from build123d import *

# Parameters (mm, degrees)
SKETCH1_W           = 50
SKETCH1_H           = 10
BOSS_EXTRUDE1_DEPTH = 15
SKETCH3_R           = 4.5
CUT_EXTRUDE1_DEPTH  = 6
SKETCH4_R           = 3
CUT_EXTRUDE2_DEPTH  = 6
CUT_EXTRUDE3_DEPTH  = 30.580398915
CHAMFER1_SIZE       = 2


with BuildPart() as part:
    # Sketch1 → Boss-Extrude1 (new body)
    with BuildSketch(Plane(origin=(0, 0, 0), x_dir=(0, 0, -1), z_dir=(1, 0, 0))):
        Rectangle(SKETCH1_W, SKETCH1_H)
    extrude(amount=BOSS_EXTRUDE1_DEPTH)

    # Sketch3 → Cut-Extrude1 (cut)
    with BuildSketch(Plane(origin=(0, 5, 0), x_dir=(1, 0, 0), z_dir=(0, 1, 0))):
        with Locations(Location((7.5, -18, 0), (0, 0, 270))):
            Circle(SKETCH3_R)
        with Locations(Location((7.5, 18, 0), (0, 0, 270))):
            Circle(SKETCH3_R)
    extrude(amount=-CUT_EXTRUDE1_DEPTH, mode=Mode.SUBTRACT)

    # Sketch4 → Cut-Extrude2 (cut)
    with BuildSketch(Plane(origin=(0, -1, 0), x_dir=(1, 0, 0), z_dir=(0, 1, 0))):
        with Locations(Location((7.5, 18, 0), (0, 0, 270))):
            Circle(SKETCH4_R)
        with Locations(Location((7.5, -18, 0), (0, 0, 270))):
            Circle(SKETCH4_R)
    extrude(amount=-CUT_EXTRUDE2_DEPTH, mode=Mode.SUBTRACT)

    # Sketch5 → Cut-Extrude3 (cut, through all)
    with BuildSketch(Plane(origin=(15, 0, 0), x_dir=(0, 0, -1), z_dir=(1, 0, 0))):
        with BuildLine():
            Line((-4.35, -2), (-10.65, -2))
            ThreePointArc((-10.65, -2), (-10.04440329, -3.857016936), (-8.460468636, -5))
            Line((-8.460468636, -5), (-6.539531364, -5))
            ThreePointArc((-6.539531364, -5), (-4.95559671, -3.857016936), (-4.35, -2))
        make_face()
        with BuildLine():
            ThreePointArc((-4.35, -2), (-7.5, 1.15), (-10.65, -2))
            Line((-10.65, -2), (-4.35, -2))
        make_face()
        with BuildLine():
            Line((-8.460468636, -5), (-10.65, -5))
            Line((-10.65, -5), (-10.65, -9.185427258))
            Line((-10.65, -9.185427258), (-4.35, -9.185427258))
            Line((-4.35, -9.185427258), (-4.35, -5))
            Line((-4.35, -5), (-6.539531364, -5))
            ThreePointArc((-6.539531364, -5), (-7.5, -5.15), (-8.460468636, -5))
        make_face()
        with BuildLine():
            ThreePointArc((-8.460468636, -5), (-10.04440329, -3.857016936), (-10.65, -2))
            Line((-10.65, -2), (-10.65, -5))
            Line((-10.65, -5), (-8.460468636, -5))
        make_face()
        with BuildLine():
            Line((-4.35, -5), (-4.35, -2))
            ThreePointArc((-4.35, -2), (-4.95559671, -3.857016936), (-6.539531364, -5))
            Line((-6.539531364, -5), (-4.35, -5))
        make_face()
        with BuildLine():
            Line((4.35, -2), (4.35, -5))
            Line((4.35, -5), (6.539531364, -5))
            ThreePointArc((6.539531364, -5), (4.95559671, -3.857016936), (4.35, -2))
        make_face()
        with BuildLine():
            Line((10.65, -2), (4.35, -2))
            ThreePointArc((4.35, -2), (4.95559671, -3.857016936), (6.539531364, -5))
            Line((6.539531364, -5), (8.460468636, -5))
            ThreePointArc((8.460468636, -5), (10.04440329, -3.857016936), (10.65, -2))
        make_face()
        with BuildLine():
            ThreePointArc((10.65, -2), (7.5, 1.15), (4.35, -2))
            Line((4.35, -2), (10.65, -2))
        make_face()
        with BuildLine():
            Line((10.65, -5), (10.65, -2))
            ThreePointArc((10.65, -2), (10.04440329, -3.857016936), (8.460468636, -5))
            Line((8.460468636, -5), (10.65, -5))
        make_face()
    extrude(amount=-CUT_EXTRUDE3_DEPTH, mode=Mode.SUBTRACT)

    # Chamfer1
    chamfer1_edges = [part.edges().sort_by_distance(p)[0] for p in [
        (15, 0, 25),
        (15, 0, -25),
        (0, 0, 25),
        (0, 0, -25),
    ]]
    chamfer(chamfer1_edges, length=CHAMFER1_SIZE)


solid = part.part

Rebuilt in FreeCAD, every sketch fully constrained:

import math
import FreeCAD as App
import Part
import Sketcher

V = App.Vector


def edges_at(feature, points):
    """Names of the edges that pass closest to the given points."""
    edges = feature.Shape.Edges
    near = lambda p: min(range(len(edges)), key=lambda i: edges[i].distToShape(Part.Vertex(*p))[0])
    return sorted({f"Edge{near(p) + 1}" for p in points})

doc = App.newDocument("Part")
body = doc.addObject("PartDesign::Body", "Body")

sketch1 = body.newObject("Sketcher::SketchObject", "Sketch")
sketch1.AttachmentSupport = (doc.getObject("YZ_Plane"), [""])
sketch1.MapMode = "FlatFace"
sketch1.addGeometry(Part.LineSegment(V(5, 25, 0), V(-5, 25, 0)), False)
sketch1.addGeometry(Part.LineSegment(V(-5, 25, 0), V(-5, -25, 0)), False)
sketch1.addGeometry(Part.LineSegment(V(-5, -25, 0), V(5, -25, 0)), False)
sketch1.addGeometry(Part.LineSegment(V(5, -25, 0), V(5, 25, 0)), False)
sketch1.addConstraint(Sketcher.Constraint("Coincident", 0, 2, 1, 1))
sketch1.addConstraint(Sketcher.Constraint("Coincident", 1, 2, 2, 1))
sketch1.addConstraint(Sketcher.Constraint("Coincident", 2, 2, 3, 1))
sketch1.addConstraint(Sketcher.Constraint("Coincident", 3, 2, 0, 1))
sketch1.addConstraint(Sketcher.Constraint("Horizontal", 0))
sketch1.addConstraint(Sketcher.Constraint("Vertical", 1))
sketch1.addConstraint(Sketcher.Constraint("Horizontal", 2))
sketch1.addConstraint(Sketcher.Constraint("Vertical", 3))
sketch1.addConstraint(Sketcher.Constraint("Symmetric", 0, 2, 2, 2, -1, 1))
sketch1.addConstraint(Sketcher.Constraint("DistanceX", 0, 2, 0, 1, 10.0))
sketch1.addConstraint(Sketcher.Constraint("DistanceY", 1, 2, 1, 1, 50.0))
pad1 = body.newObject("PartDesign::Pad", "Pad")
pad1.Profile = sketch1
pad1.Length = 15

sketch2 = body.newObject("Sketcher::SketchObject", "Sketch001")
sketch2.AttachmentSupport = (doc.getObject("XZ_Plane"), [""])
sketch2.MapMode = "FlatFace"
sketch2.AttachmentOffset = App.Placement(V(0, 0, -5), App.Rotation())
sketch2.addGeometry(Part.Circle(V(7.5, 18, 0), V(0, 0, 1), 4.5), False)
sketch2.addGeometry(Part.Circle(V(7.5, -18, 0), V(0, 0, 1), 4.5), False)
sketch2.addConstraint(Sketcher.Constraint("Equal", 0, 1))
sketch2.addConstraint(Sketcher.Constraint("Symmetric", 0, 3, 1, 3, -1))
sketch2.addConstraint(Sketcher.Constraint("Diameter", 0, 9.0))
sketch2.addConstraint(Sketcher.Constraint("DistanceY", -1, 1, 0, 3, 18.0))
sketch2.addConstraint(Sketcher.Constraint("DistanceX", -1, 1, 0, 3, 7.5))
pocket1 = body.newObject("PartDesign::Pocket", "Pocket")
pocket1.Profile = sketch2
pocket1.Length = 6
pocket1.Reversed = True

sketch3 = body.newObject("Sketcher::SketchObject", "Sketch002")
sketch3.AttachmentSupport = (doc.getObject("XZ_Plane"), [""])
sketch3.MapMode = "FlatFace"
sketch3.AttachmentOffset = App.Placement(V(0, 0, 1), App.Rotation())
sketch3.addGeometry(Part.Circle(V(7.5, -18, 0), V(0, 0, 1), 3), False)
sketch3.addGeometry(Part.Circle(V(7.5, 18, 0), V(0, 0, 1), 3), False)
sketch3.addConstraint(Sketcher.Constraint("Equal", 0, 1))
sketch3.addConstraint(Sketcher.Constraint("Symmetric", 0, 3, 1, 3, -1))
sketch3.addConstraint(Sketcher.Constraint("Diameter", 0, 6.0))
sketch3.addConstraint(Sketcher.Constraint("DistanceY", 0, 3, -1, 1, 18.0))
sketch3.addConstraint(Sketcher.Constraint("DistanceX", -1, 1, 0, 3, 7.5))
pocket2 = body.newObject("PartDesign::Pocket", "Pocket001")
pocket2.Profile = sketch3
pocket2.Length = 6
pocket2.Reversed = True

sketch4 = body.newObject("Sketcher::SketchObject", "Sketch003")
sketch4.AttachmentSupport = (doc.getObject("YZ_Plane"), [""])
sketch4.MapMode = "FlatFace"
sketch4.AttachmentOffset = App.Placement(V(0, 0, 15), App.Rotation())
sketch4.addGeometry(Part.LineSegment(V(-9.2, 4.3, 0), V(-2, 4.3, 0)), False)
sketch4.addGeometry(Part.ArcOfCircle(Part.Circle(V(-2, 7.5, 0), V(0, 0, 1), 3.1), math.radians(-90), math.radians(90)), False)
sketch4.addGeometry(Part.LineSegment(V(-2, 10.7, 0), V(-9.2, 10.7, 0)), False)
sketch4.addGeometry(Part.LineSegment(V(-9.2, 10.7, 0), V(-9.2, 4.3, 0)), False)
sketch4.addGeometry(Part.LineSegment(V(-5, 8.5, 0), V(-5, 6.5, 0)), False)
sketch4.addGeometry(Part.ArcOfCircle(Part.Circle(V(-2, 7.5, 0), V(0, 0, 1), 3.2), math.radians(162), math.radians(198)), False)
sketch4.addGeometry(Part.LineSegment(V(-2, -4.3, 0), V(-5, -4.3, 0)), False)
sketch4.addGeometry(Part.LineSegment(V(-5, -4.3, 0), V(-5, -10.7, 0)), False)
sketch4.addGeometry(Part.LineSegment(V(-5, -10.7, 0), V(-2, -10.7, 0)), False)
sketch4.addGeometry(Part.ArcOfCircle(Part.Circle(V(-2, -7.5, 0), V(0, 0, 1), 3.1), math.radians(-90), math.radians(90)), False)
sketch4.addConstraint(Sketcher.Constraint("Tangent", 0, 2, 1, 1))
sketch4.addConstraint(Sketcher.Constraint("Tangent", 1, 2, 2, 1))
sketch4.addConstraint(Sketcher.Constraint("Coincident", 2, 2, 3, 1))
sketch4.addConstraint(Sketcher.Constraint("Coincident", 3, 2, 0, 1))
sketch4.addConstraint(Sketcher.Constraint("Coincident", 4, 1, 5, 1))
sketch4.addConstraint(Sketcher.Constraint("Coincident", 5, 2, 4, 2))
sketch4.addConstraint(Sketcher.Constraint("Coincident", 6, 2, 7, 1))
sketch4.addConstraint(Sketcher.Constraint("Coincident", 7, 2, 8, 1))
sketch4.addConstraint(Sketcher.Constraint("Tangent", 8, 2, 9, 1))
sketch4.addConstraint(Sketcher.Constraint("Tangent", 9, 2, 6, 1))
sketch4.addConstraint(Sketcher.Constraint("Horizontal", 0))
sketch4.addConstraint(Sketcher.Constraint("Horizontal", 2))
sketch4.addConstraint(Sketcher.Constraint("Vertical", 3))
sketch4.addConstraint(Sketcher.Constraint("Vertical", 4))
sketch4.addConstraint(Sketcher.Constraint("Horizontal", 6))
sketch4.addConstraint(Sketcher.Constraint("Vertical", 7))
sketch4.addConstraint(Sketcher.Constraint("Horizontal", 8))
sketch4.addConstraint(Sketcher.Constraint("Coincident", 5, 3, 1, 3))
sketch4.addConstraint(Sketcher.Constraint("Equal", 1, 5))
sketch4.addConstraint(Sketcher.Constraint("Equal", 5, 9))
sketch4.addConstraint(Sketcher.Constraint("Symmetric", 1, 3, 9, 3, -1))
sketch4.addConstraint(Sketcher.Constraint("Vertical", 5, 2, 6, 2))
sketch4.addConstraint(Sketcher.Constraint("DistanceX", 6, 2, 6, 1, 3.0))
sketch4.addConstraint(Sketcher.Constraint("Radius", 1, 3.15))
sketch4.addConstraint(Sketcher.Constraint("DistanceX", 1, 3, -1, 1, 2.0))
sketch4.addConstraint(Sketcher.Constraint("DistanceY", 9, 3, 1, 3, 15.0))
sketch4.addConstraint(Sketcher.Constraint("DistanceX", 0, 1, 0, 2, 7.185427))
pocket3 = body.newObject("PartDesign::Pocket", "Pocket002")
pocket3.Profile = sketch4
pocket3.Type = "ThroughAll"
doc.recompute()

chamfer = body.newObject("PartDesign::Chamfer", "Chamfer")
chamfer.Base = (pocket3, edges_at(pocket3, [
    (15, 0, 25),
    (15, 0, -25),
    (0, 0, 25),
    (0, 0, -25),
]))
chamfer.Size = 2

doc.recompute()
